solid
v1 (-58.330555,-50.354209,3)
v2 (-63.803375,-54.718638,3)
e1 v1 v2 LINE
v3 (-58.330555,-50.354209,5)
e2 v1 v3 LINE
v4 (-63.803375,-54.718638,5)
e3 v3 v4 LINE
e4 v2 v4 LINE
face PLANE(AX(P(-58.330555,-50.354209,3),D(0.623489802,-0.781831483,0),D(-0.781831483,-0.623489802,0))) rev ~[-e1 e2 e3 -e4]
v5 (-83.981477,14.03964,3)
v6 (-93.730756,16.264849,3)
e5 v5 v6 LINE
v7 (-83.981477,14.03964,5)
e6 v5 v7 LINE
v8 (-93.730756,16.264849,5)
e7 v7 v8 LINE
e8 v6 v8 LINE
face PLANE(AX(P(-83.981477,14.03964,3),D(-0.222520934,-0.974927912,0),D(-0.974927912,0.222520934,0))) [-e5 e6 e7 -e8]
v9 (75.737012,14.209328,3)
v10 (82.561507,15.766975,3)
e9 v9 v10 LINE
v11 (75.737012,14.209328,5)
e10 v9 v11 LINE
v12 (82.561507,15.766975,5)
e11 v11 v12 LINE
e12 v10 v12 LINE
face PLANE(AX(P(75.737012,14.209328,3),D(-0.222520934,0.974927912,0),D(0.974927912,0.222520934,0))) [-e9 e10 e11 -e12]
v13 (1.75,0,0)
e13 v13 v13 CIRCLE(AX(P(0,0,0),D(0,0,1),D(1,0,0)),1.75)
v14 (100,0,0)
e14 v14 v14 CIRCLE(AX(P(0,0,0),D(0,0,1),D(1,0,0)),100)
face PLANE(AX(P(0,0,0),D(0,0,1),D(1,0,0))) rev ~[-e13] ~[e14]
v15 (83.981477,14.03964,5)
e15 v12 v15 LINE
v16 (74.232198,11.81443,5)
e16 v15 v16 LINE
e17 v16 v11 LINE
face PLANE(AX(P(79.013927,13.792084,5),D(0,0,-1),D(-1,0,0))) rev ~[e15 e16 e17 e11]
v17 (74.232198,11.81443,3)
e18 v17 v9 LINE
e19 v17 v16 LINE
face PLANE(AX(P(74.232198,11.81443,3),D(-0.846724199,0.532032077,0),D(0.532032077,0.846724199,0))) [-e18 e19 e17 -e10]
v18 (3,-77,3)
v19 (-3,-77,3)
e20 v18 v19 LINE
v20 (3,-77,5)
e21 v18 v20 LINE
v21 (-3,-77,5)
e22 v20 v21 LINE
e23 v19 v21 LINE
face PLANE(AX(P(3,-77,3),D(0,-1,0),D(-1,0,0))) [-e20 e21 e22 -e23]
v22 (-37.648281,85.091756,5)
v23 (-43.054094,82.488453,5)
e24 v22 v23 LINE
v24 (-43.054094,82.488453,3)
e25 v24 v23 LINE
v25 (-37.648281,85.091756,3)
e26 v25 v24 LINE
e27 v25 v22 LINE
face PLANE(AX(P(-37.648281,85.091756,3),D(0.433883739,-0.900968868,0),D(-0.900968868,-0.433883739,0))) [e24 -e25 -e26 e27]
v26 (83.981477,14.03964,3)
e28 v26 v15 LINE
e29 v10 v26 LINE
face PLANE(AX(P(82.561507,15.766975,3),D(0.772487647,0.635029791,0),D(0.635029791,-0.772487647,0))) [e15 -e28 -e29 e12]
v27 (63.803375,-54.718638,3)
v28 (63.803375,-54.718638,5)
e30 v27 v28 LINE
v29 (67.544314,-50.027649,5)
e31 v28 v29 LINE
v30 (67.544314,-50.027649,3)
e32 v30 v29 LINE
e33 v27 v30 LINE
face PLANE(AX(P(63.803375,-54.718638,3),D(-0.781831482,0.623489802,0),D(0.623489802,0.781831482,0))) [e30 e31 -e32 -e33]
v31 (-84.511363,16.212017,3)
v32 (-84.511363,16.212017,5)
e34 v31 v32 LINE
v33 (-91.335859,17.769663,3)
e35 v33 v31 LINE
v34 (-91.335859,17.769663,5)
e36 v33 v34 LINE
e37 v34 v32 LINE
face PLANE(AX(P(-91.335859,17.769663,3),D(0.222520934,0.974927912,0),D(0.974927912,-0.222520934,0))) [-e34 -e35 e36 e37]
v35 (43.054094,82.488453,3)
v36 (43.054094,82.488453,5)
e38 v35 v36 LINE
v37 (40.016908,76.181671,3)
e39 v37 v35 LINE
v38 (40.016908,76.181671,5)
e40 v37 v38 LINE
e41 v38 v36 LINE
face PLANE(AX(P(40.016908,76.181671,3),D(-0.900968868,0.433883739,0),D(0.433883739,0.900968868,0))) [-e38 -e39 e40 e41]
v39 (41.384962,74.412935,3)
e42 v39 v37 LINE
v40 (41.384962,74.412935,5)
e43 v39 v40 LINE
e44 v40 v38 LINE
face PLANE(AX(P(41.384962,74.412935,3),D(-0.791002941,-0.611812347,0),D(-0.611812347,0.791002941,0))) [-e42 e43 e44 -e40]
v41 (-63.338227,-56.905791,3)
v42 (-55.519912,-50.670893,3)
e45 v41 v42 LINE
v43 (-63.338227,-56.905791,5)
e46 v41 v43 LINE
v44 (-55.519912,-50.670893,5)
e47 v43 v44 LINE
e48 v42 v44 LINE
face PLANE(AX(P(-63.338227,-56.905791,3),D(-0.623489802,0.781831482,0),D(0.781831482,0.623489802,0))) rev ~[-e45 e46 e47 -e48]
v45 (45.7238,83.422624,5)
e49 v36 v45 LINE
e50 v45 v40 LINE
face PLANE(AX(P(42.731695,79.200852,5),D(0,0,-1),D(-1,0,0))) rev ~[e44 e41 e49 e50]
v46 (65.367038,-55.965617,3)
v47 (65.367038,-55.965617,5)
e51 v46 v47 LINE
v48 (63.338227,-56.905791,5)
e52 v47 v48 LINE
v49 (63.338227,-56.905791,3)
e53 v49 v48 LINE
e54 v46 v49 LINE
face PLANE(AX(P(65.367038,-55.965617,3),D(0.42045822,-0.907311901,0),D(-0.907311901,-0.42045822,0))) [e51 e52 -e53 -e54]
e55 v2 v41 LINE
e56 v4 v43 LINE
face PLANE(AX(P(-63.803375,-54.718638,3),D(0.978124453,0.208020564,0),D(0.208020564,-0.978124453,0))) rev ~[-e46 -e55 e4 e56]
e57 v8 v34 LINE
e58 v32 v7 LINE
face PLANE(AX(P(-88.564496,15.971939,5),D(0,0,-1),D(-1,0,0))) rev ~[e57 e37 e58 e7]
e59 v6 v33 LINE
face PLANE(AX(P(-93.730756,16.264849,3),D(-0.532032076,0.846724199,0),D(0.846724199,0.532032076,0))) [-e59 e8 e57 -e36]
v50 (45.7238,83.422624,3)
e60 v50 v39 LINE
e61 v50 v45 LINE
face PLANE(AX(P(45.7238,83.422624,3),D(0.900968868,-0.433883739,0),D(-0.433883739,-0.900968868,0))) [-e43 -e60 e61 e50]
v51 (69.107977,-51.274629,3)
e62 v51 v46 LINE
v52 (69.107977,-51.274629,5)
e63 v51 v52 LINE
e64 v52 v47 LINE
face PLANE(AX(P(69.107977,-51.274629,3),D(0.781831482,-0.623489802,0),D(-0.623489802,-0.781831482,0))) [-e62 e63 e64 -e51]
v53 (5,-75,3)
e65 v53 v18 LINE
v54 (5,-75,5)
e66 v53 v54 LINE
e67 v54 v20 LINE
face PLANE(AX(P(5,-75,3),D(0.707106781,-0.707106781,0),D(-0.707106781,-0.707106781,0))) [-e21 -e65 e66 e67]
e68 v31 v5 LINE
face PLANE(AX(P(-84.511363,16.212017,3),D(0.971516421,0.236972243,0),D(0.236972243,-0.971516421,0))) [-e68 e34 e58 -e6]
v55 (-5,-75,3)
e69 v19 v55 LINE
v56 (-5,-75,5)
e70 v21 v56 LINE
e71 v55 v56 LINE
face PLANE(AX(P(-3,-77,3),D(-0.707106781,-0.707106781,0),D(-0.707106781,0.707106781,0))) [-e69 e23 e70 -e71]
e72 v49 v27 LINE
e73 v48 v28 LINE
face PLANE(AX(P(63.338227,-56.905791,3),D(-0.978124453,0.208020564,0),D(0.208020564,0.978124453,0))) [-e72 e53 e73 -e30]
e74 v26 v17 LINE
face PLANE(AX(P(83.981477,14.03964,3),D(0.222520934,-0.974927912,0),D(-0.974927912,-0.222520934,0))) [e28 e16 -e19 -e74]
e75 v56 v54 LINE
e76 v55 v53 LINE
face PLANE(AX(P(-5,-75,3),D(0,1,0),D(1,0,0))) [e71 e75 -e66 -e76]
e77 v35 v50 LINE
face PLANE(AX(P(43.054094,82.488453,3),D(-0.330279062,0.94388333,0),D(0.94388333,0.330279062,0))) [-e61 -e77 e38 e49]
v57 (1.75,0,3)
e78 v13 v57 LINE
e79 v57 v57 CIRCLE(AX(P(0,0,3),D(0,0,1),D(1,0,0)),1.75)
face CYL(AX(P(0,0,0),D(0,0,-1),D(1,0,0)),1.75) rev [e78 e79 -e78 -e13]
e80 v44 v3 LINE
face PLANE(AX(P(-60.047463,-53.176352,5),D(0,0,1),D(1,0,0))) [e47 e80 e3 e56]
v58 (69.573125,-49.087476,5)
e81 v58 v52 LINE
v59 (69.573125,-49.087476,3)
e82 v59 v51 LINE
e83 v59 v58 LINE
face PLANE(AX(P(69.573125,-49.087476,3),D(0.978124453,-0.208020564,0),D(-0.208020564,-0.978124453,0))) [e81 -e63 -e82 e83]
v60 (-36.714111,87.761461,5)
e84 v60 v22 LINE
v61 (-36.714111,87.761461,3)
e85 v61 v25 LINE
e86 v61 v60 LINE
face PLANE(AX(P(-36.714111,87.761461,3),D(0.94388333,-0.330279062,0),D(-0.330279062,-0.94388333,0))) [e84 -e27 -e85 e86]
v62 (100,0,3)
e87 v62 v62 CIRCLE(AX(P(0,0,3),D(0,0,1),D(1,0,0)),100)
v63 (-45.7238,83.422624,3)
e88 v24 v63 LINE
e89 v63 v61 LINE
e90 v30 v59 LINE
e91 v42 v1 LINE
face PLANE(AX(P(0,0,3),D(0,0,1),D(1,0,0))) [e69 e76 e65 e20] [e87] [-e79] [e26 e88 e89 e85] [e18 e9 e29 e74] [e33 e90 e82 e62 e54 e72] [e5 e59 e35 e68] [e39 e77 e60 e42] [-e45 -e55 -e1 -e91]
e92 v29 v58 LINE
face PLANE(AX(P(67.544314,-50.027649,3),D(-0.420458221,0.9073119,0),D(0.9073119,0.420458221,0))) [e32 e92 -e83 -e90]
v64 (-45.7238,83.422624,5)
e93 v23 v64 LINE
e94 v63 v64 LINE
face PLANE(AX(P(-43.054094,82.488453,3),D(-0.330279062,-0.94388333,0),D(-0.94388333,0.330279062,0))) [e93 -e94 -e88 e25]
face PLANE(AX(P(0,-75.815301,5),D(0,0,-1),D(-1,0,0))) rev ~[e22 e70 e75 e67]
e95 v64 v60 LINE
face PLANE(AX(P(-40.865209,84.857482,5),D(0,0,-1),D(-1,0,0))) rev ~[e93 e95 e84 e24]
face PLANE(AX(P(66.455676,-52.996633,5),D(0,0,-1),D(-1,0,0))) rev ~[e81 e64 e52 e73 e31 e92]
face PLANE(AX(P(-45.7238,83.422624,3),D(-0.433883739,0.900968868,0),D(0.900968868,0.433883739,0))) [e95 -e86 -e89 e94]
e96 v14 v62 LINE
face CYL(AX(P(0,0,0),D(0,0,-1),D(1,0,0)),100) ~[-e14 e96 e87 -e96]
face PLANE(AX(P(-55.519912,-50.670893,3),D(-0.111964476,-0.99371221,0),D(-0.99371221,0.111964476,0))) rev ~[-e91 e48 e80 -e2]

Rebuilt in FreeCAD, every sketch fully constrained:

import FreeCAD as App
import Part
import Sketcher

V = App.Vector
Q = App.Units.Quantity


def add_polygon(sketch, points):
    """Adds a closed chain of lines whose ends are joined by coincident constraints."""
    first, n = sketch.GeometryCount, len(points)
    for a, b in zip(points, points[1:] + points[:1]):
        sketch.addGeometry(Part.LineSegment(App.Vector(*a, 0), App.Vector(*b, 0)), False)
    for i in range(n):
        sketch.addConstraint(Sketcher.Constraint("Coincident", first + i, 2, first + (i + 1) % n, 1))

doc = App.newDocument("Part")
body = doc.addObject("PartDesign::Body", "Body")

sketch1 = body.newObject("Sketcher::SketchObject", "Sketch")
sketch1.AttachmentSupport = (doc.getObject("XY_Plane"), [""])
sketch1.MapMode = "FlatFace"
sketch1.addGeometry([
    Part.Circle(V(0, 0, 0), V(0, 0, 1), 100),
    Part.Circle(V(0, 0, 0), V(0, 0, 1), 1.8),
], False)
sketch1.addConstraint([
    Sketcher.Constraint("Coincident", 0, 3, -1, 1),
    Sketcher.Constraint("Coincident", 1, 3, -1, 1),
    Sketcher.Constraint("Diameter", 0, Q("200 mm")),
    Sketcher.Constraint("Diameter", 1, Q("3.5 mm")),
])
pad1 = body.newObject("PartDesign::Pad", "Pad")
pad1.Profile = sketch1
pad1.Length = 3

sketch2 = body.newObject("Sketcher::SketchObject", "Sketch001")
sketch2.AttachmentSupport = (doc.getObject("XY_Plane"), [""])
sketch2.MapMode = "FlatFace"
sketch2.AttachmentOffset = App.Placement(V(0, 0, 3), App.Rotation())
add_polygon(sketch2, [(-5, -75), (-3, -77), (3, -77), (5, -75)])
add_polygon(sketch2, [(-58.3, -50.4), (-63.8, -54.7), (-63.3, -56.9), (-55.5, -50.7)])
add_polygon(sketch2, [(-84.5, 16.2), (-91.3, 17.8), (-93.7, 16.3), (-84, 14)])
add_polygon(sketch2, [(-45.7, 83.4), (-43.1, 82.5), (-37.6, 85.1), (-36.7, 87.8)])
add_polygon(sketch2, [(45.7, 83.4), (43.1, 82.5), (40, 76.2), (41.4, 74.4)])
add_polygon(sketch2, [(84, 14), (82.6, 15.8), (75.7, 14.2), (74.2, 11.8)])
add_polygon(sketch2, [(69.1, -51.3), (69.6, -49.1), (67.5, -50), (63.8, -54.7), (63.3, -56.9), (65.4, -56)])
sketch2.addConstraint([
    Sketcher.Constraint("Horizontal", 1),
    Sketcher.Constraint("Horizontal", 3),
    Sketcher.Constraint("Symmetric", 12, 2, 16, 2, -2),
    Sketcher.Constraint("Symmetric", 15, 2, 19, 2, -2),
    Sketcher.Constraint("Symmetric", 10, 2, 23, 2, -2),
    Sketcher.Constraint("Symmetric", 4, 2, 26, 2, -2),
    Sketcher.Constraint("Symmetric", 5, 2, 27, 2, -2),
    Sketcher.Constraint("Perpendicular", 0, 2),
    Sketcher.Constraint("Parallel", 4, 6),
    Sketcher.Constraint("Parallel", 8, 10),
    Sketcher.Constraint("Perpendicular", 12, 14),
    Sketcher.Constraint("Parallel", 13, 15),
    Sketcher.Constraint("Parallel", 17, 19),
    Sketcher.Constraint("Parallel", 21, 23),
    Sketcher.Constraint("Parallel", 24, 27),
    Sketcher.Constraint("Parallel", 25, 28),
    Sketcher.Constraint("Parallel", 26, 29),
    Sketcher.Constraint("Equal", 0, 2),
    Sketcher.Constraint("Equal", 2, 7),
    Sketcher.Constraint("Equal", 4, 8),
    Sketcher.Constraint("Equal", 7, 9),
    Sketcher.Constraint("Equal", 6, 10),
    Sketcher.Constraint("Equal", 5, 11),
    Sketcher.Constraint("Equal", 9, 12),
    Sketcher.Constraint("Equal", 12, 14),
    Sketcher.Constraint("Equal", 10, 15),
    Sketcher.Constraint("Equal", 8, 17),
    Sketcher.Constraint("Equal", 11, 18),
    Sketcher.Constraint("Equal", 15, 19),
    Sketcher.Constraint("Equal", 18, 20),
    Sketcher.Constraint("Equal", 17, 21),
    Sketcher.Constraint("Equal", 16, 22),
    Sketcher.Constraint("Equal", 19, 23),
    Sketcher.Constraint("Equal", 20, 24),
    Sketcher.Constraint("Equal", 24, 25),
    Sketcher.Constraint("Equal", 13, 26),
    Sketcher.Constraint("DistanceX", 1, 1, 1, 2, Q("6 mm")),
    Sketcher.Constraint("DistanceX", 3, 2, 3, 1, Q("10 mm")),
    Sketcher.Constraint("Distance", 4, Q("7 mm")),
    Sketcher.Constraint("Distance", 6, Q("10 mm")),
    Sketcher.Constraint("DistanceX", 0, 2, -1, 1, Q("3 mm")),
    Sketcher.Constraint("DistanceY", 0, 2, -1, 1, Q("77 mm")),
    Sketcher.Constraint("DistanceX", 15, 2, -1, 1, Q("45.7238 mm")),
    Sketcher.Constraint("DistanceX", -1, 1, 22, 2, Q("74.232198 mm")),
    Sketcher.Constraint("DistanceY", 5, 2, 6, 2, Q("6.234898 mm")),
    Sketcher.Constraint("DistanceY", 4, 2, 8, 2, Q("72.488301 mm")),
    Sketcher.Constraint("DistanceX", 9, 2, 7, 2, Q("35.400202 mm")),
    Sketcher.Constraint("DistanceY", 8, 2, 14, 2, Q("69.991798 mm")),
    Sketcher.Constraint("DistanceX", 17, 2, 20, 2, Q("42.544599 mm")),
    Sketcher.Constraint("DistanceX", 25, 2, 21, 2, Q("8.192698 mm")),
    Sketcher.Constraint("DistanceX", 27, 2, 24, 2, Q("6.234898 mm")),
    Sketcher.Constraint("DistanceX", 26, 2, 29, 2, Q("5.304602 mm")),
    Sketcher.Constraint("DistanceY", 5, 2, -1, 1, Q("56.905791 mm")),
    Sketcher.Constraint("DistanceX", 8, 2, -1, 1, Q("91.335859 mm")),
    Sketcher.Constraint("DistanceY", -1, 1, 9, 2, Q("16.264849 mm")),
])
pad2 = body.newObject("PartDesign::Pad", "Pad001")
pad2.Profile = sketch2
pad2.Length = 2

doc.recompute()
